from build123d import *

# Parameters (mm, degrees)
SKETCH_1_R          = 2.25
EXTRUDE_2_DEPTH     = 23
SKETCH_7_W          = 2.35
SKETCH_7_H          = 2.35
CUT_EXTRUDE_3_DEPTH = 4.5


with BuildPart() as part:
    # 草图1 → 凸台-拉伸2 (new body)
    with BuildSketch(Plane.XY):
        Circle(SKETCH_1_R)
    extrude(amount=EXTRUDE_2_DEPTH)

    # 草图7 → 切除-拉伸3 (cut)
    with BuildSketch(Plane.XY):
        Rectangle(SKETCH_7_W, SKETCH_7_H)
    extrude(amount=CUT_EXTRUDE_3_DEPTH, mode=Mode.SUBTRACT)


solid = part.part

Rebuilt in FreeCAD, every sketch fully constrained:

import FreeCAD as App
import Part
import Sketcher

V = App.Vector

doc = App.newDocument("Part")
body = doc.addObject("PartDesign::Body", "Body")

# Sketch on XY plane
sketch1 = body.newObject("Sketcher::SketchObject", "Sketch")
sketch1.AttachmentSupport = (doc.getObject("XY_Plane"), [""])
sketch1.MapMode = "FlatFace"
sketch1.addGeometry(Part.Circle(V(0, 0, 0), V(0, 0, 1), 2.2), False)
sketch1.addConstraint([
    Sketcher.Constraint("Coincident", 0, 3, -1, 1),
    Sketcher.Constraint("Diameter", 0, 4.5),
])
pad1 = body.newObject("PartDesign::Pad", "Pad")
pad1.Profile = sketch1
pad1.Length = 23

# Sketch on XY plane
sketch2 = body.newObject("Sketcher::SketchObject", "Sketch001")
sketch2.AttachmentSupport = (doc.getObject("XY_Plane"), [""])
sketch2.MapMode = "FlatFace"
sketch2.addGeometry([
    Part.LineSegment(V(-1.2, 1.2, 0), V(-1.2, -1.2, 0)),
    Part.LineSegment(V(-1.2, -1.2, 0), V(1.2, -1.2, 0)),
    Part.LineSegment(V(1.2, -1.2, 0), V(1.2, 1.2, 0)),
    Part.LineSegment(V(1.2, 1.2, 0), V(-1.2, 1.2, 0)),
], False)
sketch2.addConstraint([
    Sketcher.Constraint("Coincident", 0, 2, 1, 1),
    Sketcher.Constraint("Coincident", 1, 2, 2, 1),
    Sketcher.Constraint("Coincident", 2, 2, 3, 1),
    Sketcher.Constraint("Coincident", 3, 2, 0, 1),
    Sketcher.Constraint("Vertical", 0),
    Sketcher.Constraint("Horizontal", 1),
    Sketcher.Constraint("Vertical", 2),
    Sketcher.Constraint("Horizontal", 3),
    Sketcher.Constraint("Symmetric", 0, 2, 2, 2, -1, 1),
    Sketcher.Constraint("Equal", 3, 0),
    Sketcher.Constraint("DistanceX", 1, 1, 1, 2, 2.35),
])
pocket1 = body.newObject("PartDesign::Pocket", "Pocket")
pocket1.Profile = sketch2
pocket1.Length = 4.5
pocket1.Reversed = True

doc.recompute()
